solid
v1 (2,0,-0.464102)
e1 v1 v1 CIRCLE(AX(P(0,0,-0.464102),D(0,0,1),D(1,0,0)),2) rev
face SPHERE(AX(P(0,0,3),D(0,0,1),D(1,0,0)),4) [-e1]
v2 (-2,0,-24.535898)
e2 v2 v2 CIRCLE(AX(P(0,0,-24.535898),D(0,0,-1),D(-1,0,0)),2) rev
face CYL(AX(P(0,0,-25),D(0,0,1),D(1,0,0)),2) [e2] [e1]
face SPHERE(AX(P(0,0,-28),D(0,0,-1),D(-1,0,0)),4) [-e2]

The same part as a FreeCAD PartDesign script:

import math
import FreeCAD as App
import Part
import Sketcher
from FreeCAD import Vector
Q = App.Units.Quantity

doc = App.newDocument("Part")
params = doc.addObject("Spreadsheet::Sheet", "Params")
for row, (alias, value) in enumerate([
    ("sketch1_diameter", "4 mm"),
    ("pad1_length", "25 mm"),
    ("sketch2_radius", "4 mm"),
    ("revolution_angle", "360 deg"),
], start=1):
    params.set(f"A{row}", alias)
    params.set(f"B{row}", "=" + value)
    params.setAlias(f"B{row}", alias)

body = doc.addObject("PartDesign::Body", "Body")

sketch1 = body.newObject("Sketcher::SketchObject", "Sketch")
sketch1.AttachmentSupport = (doc.getObject("XY_Plane"), [""])
sketch1.MapMode = "FlatFace"
sketch1.addGeometry(Part.Circle(Vector(0, 0, 0), Vector(0, 0, 1), 2), False)
sketch1.addConstraint([
    Sketcher.Constraint("Coincident", 0, 3, -1, 1),
    Sketcher.Constraint("Diameter", 0, Q("4 mm")),
])
sketch1.setExpression("Constraints[1]", "Params.sketch1_diameter")
pad1 = body.newObject("PartDesign::Pad", "Pad")
pad1.Profile = sketch1
pad1.setExpression("Length", "Params.pad1_length")
pad1.Reversed = True

sketch2 = body.newObject("Sketcher::SketchObject", "Sketch001")
sketch2.AttachmentSupport = (doc.getObject("XY_Plane"), [""])
sketch2.MapMode = "FlatFace"
sketch2.AttachmentOffset = App.Placement(Vector(0, 0, 3), App.Rotation())
sketch2.addGeometry([
    Part.LineSegment(Vector(0, 4, 0), Vector(0, -4, 0)),
    Part.ArcOfCircle(Part.Circle(Vector(0, 0, 0), Vector(0, 0, 1), 4), math.radians(-90), math.radians(90)),
], False)
sketch2.addConstraint([
    Sketcher.Constraint("Coincident", 0, 1, 1, 2),
    Sketcher.Constraint("Coincident", 1, 1, 0, 2),
    Sketcher.Constraint("Vertical", 0),
    Sketcher.Constraint("Coincident", 1, 3, -1, 1),
    Sketcher.Constraint("PointOnObject", 0, 1, -2),
    Sketcher.Constraint("Radius", 1, Q("4 mm")),
])
sketch2.setExpression("Constraints[5]", "Params.sketch2_radius")
revolution = body.newObject("PartDesign::Revolution", "Revolution")
revolution.Profile = sketch2
revolution.ReferenceAxis = (sketch2, ["V_Axis"])
revolution.setExpression("Angle", "Params.revolution_angle")
doc.recompute()

datumplane = body.newObject("PartDesign::Plane", "DatumPlane")
datumplane.AttachmentSupport = (doc.getObject("XY_Plane"), [""])
datumplane.MapMode = "FlatFace"
datumplane.AttachmentOffset = App.Placement(Vector(0, 0, -12.5), App.Rotation())
mirrored = body.newObject("PartDesign::Mirrored", "Mirrored")
mirrored.Originals = [revolution]
mirrored.MirrorPlane = (datumplane, [""])
body.Tip = mirrored

doc.recompute()
